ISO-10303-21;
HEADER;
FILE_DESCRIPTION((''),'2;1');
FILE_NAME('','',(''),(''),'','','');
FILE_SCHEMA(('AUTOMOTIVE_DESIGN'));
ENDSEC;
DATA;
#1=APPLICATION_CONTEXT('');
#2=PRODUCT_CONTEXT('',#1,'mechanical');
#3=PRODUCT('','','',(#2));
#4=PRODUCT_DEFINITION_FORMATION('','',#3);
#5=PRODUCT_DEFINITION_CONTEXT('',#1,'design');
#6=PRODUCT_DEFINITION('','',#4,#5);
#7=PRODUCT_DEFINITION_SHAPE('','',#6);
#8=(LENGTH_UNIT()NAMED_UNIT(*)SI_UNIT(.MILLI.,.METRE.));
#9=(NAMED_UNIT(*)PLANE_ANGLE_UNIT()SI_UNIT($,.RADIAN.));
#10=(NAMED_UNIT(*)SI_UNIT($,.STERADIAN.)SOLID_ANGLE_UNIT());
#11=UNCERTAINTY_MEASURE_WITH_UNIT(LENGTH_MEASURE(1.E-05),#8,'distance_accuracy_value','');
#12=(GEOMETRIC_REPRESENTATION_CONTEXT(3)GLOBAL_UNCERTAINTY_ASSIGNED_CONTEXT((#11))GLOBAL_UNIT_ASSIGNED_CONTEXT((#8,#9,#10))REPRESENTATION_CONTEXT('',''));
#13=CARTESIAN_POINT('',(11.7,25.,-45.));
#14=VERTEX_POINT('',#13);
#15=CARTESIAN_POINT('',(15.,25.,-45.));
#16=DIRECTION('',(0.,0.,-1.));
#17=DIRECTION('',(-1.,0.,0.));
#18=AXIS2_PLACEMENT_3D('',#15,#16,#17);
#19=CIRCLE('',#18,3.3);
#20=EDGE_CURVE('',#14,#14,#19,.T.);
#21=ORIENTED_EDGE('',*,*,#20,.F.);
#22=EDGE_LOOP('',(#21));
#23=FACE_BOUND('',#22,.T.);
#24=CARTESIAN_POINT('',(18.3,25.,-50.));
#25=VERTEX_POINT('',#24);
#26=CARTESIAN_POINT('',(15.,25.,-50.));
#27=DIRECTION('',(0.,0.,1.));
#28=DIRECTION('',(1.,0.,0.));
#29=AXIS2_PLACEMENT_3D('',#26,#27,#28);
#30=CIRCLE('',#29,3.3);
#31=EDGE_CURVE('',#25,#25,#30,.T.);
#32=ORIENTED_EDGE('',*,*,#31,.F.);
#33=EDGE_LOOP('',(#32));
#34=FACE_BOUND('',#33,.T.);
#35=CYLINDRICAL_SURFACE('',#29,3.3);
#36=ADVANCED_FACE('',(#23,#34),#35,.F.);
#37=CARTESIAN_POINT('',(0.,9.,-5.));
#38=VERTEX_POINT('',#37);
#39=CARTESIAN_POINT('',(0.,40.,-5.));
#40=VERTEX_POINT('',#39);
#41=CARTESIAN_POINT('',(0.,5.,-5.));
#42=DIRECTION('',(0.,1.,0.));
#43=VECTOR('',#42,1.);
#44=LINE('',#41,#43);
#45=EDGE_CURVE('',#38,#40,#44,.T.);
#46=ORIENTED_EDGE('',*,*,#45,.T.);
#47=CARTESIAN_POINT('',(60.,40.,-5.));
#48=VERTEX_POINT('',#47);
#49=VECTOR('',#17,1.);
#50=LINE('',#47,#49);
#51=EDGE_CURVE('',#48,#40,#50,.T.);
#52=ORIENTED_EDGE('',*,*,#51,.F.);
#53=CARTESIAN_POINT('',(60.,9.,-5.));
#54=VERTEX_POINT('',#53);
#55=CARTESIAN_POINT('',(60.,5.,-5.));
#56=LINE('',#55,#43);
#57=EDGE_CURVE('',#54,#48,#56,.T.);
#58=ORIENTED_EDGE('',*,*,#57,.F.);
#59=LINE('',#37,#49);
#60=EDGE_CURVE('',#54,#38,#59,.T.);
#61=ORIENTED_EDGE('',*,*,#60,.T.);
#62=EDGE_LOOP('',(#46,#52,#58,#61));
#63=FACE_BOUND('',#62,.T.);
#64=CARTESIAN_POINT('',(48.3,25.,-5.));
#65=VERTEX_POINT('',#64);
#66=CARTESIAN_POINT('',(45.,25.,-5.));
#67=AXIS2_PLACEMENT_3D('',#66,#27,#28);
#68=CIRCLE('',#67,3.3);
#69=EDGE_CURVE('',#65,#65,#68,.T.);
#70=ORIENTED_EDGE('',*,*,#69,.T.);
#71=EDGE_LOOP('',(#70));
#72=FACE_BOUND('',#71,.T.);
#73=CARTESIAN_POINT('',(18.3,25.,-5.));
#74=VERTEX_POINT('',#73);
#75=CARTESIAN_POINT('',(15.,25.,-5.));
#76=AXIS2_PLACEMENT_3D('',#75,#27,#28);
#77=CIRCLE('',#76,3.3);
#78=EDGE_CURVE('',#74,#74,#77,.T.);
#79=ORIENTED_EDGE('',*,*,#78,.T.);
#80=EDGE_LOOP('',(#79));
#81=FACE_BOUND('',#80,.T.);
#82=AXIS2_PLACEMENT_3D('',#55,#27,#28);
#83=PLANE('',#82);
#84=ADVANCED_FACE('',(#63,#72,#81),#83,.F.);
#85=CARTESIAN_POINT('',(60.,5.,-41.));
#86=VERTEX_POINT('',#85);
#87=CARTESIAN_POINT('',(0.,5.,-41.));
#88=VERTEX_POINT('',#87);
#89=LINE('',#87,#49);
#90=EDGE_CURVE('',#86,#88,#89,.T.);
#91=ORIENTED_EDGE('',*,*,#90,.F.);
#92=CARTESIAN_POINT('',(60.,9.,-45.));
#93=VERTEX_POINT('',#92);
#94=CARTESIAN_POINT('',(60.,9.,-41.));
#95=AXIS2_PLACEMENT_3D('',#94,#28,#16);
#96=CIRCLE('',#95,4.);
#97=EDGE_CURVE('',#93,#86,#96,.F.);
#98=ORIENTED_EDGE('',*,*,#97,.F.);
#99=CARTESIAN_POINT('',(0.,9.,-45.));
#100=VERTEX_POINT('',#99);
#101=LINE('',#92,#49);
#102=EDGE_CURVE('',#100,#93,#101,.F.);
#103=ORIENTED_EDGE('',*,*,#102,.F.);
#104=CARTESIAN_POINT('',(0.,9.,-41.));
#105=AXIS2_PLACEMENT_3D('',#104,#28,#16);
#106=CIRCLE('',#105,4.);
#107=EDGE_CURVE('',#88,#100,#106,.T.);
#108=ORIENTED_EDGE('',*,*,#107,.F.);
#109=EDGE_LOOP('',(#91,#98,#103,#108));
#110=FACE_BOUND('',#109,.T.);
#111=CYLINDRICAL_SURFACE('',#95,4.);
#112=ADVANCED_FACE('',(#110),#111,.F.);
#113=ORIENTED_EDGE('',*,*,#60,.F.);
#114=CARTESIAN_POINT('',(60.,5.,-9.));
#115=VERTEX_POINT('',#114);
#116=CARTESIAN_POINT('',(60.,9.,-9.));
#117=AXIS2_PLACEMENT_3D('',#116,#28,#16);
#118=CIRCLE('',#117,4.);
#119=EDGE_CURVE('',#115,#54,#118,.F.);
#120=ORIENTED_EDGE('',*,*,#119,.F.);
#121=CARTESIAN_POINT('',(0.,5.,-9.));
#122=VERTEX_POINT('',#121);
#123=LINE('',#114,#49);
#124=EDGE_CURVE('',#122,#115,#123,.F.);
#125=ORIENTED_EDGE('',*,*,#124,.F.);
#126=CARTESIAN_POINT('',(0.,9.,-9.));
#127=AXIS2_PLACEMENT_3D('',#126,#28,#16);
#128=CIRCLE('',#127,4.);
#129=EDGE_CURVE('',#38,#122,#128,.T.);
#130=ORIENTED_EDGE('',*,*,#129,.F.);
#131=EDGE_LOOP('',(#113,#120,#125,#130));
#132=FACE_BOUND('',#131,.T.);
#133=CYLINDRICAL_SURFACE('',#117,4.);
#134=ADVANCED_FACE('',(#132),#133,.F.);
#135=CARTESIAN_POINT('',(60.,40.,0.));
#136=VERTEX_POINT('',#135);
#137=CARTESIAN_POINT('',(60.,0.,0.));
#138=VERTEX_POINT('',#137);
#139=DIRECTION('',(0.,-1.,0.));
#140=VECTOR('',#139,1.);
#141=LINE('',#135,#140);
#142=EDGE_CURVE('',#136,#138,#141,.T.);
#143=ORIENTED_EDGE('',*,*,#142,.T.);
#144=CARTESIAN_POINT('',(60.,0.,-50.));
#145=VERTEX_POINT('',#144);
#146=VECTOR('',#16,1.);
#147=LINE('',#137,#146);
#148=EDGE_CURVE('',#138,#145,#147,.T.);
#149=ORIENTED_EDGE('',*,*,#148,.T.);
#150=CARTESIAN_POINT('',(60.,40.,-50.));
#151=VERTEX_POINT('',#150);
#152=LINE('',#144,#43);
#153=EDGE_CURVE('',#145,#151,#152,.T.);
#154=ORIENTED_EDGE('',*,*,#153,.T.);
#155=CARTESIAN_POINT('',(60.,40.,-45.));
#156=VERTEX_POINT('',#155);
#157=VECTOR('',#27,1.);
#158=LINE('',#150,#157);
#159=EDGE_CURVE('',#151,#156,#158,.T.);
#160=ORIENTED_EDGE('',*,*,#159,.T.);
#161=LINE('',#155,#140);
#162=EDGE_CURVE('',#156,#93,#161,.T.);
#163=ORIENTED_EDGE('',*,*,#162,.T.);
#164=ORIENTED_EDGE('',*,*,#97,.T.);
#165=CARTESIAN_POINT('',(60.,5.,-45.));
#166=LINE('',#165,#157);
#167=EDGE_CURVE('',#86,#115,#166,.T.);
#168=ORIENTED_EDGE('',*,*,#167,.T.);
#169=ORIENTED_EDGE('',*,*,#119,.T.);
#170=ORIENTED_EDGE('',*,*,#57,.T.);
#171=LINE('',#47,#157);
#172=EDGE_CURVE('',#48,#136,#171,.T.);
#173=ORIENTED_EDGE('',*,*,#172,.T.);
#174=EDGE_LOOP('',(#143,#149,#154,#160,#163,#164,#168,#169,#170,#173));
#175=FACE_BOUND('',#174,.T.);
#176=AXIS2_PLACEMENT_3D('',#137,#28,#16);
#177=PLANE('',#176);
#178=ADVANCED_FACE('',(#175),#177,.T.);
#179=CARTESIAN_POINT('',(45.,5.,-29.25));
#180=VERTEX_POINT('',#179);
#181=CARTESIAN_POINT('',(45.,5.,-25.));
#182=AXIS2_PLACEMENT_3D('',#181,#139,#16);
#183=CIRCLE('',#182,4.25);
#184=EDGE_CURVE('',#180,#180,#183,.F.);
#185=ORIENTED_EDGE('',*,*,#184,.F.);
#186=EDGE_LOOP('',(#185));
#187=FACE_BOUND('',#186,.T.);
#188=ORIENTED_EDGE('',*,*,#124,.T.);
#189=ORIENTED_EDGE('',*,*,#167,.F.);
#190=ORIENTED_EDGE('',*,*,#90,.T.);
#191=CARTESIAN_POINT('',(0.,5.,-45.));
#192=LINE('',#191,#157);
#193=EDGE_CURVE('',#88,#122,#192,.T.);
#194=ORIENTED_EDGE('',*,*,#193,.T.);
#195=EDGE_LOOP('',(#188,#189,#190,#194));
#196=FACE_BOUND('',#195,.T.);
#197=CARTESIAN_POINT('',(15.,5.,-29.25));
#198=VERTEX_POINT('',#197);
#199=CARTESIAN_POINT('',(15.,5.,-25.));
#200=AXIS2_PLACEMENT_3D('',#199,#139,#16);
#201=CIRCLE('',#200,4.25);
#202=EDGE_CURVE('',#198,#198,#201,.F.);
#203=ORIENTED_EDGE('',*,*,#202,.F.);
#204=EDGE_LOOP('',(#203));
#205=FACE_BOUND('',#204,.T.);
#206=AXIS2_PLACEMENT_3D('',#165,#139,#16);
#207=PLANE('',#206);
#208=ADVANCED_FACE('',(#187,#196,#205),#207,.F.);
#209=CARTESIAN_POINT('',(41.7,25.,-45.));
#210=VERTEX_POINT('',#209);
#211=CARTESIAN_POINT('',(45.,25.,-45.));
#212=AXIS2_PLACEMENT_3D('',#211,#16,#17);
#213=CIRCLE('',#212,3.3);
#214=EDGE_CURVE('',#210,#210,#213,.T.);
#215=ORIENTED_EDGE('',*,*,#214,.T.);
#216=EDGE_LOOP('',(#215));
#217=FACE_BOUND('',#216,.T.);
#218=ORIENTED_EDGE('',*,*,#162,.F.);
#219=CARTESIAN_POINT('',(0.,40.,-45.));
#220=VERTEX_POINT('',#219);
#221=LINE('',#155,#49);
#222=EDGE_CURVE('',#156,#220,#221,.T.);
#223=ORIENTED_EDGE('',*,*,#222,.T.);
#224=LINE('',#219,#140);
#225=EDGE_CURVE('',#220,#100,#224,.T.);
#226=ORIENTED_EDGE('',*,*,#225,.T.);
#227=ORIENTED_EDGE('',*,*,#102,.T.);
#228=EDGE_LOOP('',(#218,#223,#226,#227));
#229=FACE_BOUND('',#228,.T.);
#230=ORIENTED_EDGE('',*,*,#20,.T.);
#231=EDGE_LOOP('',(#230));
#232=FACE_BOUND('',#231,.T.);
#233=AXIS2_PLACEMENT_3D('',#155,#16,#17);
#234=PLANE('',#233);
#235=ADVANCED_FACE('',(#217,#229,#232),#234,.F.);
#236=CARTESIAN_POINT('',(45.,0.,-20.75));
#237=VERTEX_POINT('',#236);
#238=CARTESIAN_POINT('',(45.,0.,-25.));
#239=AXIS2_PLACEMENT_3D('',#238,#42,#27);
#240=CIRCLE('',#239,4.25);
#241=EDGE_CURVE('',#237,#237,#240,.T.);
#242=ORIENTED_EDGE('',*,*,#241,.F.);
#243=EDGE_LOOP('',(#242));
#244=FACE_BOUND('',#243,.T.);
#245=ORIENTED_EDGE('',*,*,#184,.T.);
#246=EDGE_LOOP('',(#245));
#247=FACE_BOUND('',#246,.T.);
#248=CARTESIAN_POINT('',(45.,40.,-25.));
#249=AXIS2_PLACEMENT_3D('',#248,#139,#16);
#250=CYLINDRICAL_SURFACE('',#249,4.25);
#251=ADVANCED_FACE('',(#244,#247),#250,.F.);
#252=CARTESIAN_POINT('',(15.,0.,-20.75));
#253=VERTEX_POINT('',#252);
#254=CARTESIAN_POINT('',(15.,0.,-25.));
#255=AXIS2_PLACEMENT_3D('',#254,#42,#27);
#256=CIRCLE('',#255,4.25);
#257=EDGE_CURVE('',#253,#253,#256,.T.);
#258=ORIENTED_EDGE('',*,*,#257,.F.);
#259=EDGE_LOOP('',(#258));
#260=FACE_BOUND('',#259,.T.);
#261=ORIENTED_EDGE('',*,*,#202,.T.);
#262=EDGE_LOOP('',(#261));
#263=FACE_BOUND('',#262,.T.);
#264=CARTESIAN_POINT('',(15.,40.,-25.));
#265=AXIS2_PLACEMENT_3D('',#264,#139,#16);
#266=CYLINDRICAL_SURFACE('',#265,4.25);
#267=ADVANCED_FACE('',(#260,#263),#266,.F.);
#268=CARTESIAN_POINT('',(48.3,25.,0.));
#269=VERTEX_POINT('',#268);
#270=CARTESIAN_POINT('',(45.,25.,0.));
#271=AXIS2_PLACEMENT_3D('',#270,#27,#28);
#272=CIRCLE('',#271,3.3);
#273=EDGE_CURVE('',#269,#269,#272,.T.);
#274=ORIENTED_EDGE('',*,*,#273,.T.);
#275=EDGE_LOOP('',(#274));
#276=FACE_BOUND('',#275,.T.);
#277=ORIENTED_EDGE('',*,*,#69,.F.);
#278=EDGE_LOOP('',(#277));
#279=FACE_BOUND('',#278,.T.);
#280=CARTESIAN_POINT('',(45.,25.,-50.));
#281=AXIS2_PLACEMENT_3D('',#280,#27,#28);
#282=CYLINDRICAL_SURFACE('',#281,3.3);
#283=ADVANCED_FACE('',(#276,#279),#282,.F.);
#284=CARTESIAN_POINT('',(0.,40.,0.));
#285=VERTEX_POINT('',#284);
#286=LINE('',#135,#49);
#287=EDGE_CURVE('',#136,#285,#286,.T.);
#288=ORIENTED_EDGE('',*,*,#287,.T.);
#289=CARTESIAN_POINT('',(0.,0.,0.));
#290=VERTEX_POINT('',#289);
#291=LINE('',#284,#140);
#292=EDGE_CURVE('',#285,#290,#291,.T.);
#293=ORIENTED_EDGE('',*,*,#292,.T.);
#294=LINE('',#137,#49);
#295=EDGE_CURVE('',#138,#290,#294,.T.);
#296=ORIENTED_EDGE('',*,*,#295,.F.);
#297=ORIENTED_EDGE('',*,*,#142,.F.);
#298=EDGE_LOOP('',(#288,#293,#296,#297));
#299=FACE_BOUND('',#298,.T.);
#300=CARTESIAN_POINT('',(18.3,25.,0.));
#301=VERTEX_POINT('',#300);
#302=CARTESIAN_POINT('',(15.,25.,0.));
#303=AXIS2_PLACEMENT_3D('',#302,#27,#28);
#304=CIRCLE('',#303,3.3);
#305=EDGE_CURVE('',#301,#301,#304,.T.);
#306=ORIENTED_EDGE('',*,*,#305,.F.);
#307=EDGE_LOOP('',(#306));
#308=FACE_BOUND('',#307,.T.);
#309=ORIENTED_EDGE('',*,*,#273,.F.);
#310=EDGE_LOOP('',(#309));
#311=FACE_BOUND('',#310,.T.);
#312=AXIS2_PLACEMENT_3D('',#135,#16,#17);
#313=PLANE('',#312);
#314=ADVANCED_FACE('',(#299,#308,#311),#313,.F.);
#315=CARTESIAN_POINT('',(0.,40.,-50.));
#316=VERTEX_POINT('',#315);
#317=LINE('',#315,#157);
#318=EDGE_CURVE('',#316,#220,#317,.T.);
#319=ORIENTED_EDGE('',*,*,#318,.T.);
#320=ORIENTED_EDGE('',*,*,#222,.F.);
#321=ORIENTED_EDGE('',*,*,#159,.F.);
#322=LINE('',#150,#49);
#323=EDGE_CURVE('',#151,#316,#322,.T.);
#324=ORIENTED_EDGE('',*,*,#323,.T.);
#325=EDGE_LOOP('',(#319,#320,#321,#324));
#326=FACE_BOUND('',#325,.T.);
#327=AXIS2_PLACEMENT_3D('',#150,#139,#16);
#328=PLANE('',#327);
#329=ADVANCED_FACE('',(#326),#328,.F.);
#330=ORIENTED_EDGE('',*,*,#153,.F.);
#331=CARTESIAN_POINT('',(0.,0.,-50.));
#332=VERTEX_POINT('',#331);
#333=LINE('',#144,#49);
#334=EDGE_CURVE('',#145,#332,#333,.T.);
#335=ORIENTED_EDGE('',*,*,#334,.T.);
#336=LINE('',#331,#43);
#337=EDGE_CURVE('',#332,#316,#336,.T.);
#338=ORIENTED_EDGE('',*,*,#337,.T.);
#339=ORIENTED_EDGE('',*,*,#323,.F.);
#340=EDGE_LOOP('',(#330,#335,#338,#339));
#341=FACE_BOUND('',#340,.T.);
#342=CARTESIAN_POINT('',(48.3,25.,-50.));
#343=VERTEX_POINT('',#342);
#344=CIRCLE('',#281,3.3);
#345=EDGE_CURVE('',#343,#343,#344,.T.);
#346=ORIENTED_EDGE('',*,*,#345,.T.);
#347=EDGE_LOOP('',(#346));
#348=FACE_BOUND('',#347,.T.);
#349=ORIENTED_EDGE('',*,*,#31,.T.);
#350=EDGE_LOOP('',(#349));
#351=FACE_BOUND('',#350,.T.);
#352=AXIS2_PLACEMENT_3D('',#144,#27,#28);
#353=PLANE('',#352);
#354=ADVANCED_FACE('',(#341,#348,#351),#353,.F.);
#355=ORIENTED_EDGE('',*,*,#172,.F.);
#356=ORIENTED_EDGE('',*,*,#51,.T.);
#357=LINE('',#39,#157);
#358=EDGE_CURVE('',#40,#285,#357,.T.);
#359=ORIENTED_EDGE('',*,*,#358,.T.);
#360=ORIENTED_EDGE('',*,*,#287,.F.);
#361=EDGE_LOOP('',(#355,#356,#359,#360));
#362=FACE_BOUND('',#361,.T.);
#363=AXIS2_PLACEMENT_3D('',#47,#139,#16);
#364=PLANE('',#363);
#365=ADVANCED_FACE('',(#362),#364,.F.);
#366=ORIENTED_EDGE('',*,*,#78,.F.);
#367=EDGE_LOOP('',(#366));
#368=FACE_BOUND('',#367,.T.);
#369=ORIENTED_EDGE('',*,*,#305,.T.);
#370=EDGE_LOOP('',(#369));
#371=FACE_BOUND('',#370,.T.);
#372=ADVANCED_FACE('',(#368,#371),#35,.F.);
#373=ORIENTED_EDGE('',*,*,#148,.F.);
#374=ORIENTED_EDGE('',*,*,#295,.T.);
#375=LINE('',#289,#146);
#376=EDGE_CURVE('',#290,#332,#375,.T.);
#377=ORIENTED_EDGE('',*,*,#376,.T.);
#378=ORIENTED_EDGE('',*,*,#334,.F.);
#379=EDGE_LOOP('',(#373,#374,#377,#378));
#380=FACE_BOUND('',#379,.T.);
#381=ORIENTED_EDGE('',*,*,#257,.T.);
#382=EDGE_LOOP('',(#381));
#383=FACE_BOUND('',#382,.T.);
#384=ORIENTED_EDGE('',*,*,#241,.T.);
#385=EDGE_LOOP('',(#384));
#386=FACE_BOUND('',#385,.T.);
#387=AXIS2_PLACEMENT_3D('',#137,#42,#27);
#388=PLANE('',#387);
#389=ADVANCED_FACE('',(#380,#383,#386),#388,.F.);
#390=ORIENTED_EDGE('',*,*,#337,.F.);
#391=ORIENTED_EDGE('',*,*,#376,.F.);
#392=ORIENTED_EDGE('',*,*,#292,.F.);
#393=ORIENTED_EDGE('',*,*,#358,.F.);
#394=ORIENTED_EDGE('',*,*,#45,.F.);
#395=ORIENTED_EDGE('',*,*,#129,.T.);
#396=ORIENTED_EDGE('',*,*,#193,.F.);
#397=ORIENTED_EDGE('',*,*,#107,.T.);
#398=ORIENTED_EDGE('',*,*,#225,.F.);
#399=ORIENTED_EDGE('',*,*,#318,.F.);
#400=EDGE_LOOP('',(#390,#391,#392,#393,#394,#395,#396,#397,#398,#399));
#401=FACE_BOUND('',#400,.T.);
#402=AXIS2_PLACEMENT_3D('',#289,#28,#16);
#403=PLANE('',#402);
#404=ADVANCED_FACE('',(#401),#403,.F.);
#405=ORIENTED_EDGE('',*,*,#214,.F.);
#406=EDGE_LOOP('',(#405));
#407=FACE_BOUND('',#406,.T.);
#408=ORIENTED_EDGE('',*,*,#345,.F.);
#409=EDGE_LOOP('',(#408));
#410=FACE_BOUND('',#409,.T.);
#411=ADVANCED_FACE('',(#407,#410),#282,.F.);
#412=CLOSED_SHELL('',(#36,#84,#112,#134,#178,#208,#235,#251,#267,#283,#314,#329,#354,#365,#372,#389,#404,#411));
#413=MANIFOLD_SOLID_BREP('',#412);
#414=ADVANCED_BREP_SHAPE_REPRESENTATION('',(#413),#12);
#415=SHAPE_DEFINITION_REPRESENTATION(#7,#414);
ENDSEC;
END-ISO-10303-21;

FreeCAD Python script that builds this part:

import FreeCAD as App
import Part
import Sketcher


def edges_at(feature, points):
    """Names of the edges that pass closest to the given points."""
    edges = feature.Shape.Edges
    near = lambda p: min(range(len(edges)), key=lambda i: edges[i].distToShape(Part.Vertex(*p))[0])
    return sorted({f"Edge{near(p) + 1}" for p in points})

doc = App.newDocument("Part")
params = doc.addObject("Spreadsheet::Sheet", "Params")
for row, (alias, value) in enumerate([
    ("sketch1_width", "40 mm"),
    ("sketch1_width2", "35 mm"),
    ("sketch1_height", "50 mm"),
    ("pad1_length", "60 mm"),
    ("sketch2_diameter", "8.5 mm"),
    ("sketch3_diameter", "6.6 mm"),
    ("fillet_radius", "4 mm"),
], start=1):
    params.set(f"A{row}", alias)
    params.set(f"B{row}", "=" + value)
    params.setAlias(f"B{row}", alias)

body = doc.addObject("PartDesign::Body", "Body")

# Sketch on YZ plane
sketch1 = body.newObject("Sketcher::SketchObject", "Sketch")
sketch1.AttachmentSupport = (doc.getObject("YZ_Plane"), [""])
sketch1.MapMode = "FlatFace"
sketch1.addGeometry(Part.LineSegment(App.Vector(0, 0, 0), App.Vector(0, -50, 0)), False)
sketch1.addGeometry(Part.LineSegment(App.Vector(0, -50, 0), App.Vector(40, -50, 0)), False)
sketch1.addGeometry(Part.LineSegment(App.Vector(40, -50, 0), App.Vector(40, -45, 0)), False)
sketch1.addGeometry(Part.LineSegment(App.Vector(40, -45, 0), App.Vector(5, -45, 0)), False)
sketch1.addGeometry(Part.LineSegment(App.Vector(5, -45, 0), App.Vector(5, -5, 0)), False)
sketch1.addGeometry(Part.LineSegment(App.Vector(5, -5, 0), App.Vector(40, -5, 0)), False)
sketch1.addGeometry(Part.LineSegment(App.Vector(40, -5, 0), App.Vector(40, 0, 0)), False)
sketch1.addGeometry(Part.LineSegment(App.Vector(40, 0, 0), App.Vector(0, 0, 0)), False)
sketch1.addConstraint(Sketcher.Constraint("Coincident", 0, 2, 1, 1))
sketch1.addConstraint(Sketcher.Constraint("Coincident", 1, 2, 2, 1))
sketch1.addConstraint(Sketcher.Constraint("Coincident", 2, 2, 3, 1))
sketch1.addConstraint(Sketcher.Constraint("Coincident", 3, 2, 4, 1))
sketch1.addConstraint(Sketcher.Constraint("Coincident", 4, 2, 5, 1))
sketch1.addConstraint(Sketcher.Constraint("Coincident", 5, 2, 6, 1))
sketch1.addConstraint(Sketcher.Constraint("Coincident", 6, 2, 7, 1))
sketch1.addConstraint(Sketcher.Constraint("Coincident", 7, 2, 0, 1))
sketch1.addConstraint(Sketcher.Constraint("Vertical", 0))
sketch1.addConstraint(Sketcher.Constraint("Horizontal", 1))
sketch1.addConstraint(Sketcher.Constraint("Vertical", 2))
sketch1.addConstraint(Sketcher.Constraint("Horizontal", 3))
sketch1.addConstraint(Sketcher.Constraint("Vertical", 4))
sketch1.addConstraint(Sketcher.Constraint("Horizontal", 5))
sketch1.addConstraint(Sketcher.Constraint("Vertical", 6))
sketch1.addConstraint(Sketcher.Constraint("Horizontal", 7))
sketch1.addConstraint(Sketcher.Constraint("Coincident", 7, 2, -1, 1))
sketch1.addConstraint(Sketcher.Constraint("Vertical", 2, 2, 5, 2))
sketch1.addConstraint(Sketcher.Constraint("Equal", 7, 4))
sketch1.addConstraint(Sketcher.Constraint("Equal", 2, 6))
sketch1.addConstraint(Sketcher.Constraint("DistanceX", 1, 1, 1, 2, 40.0))
sketch1.addConstraint(Sketcher.Constraint("DistanceX", 3, 2, 3, 1, 35.0))
sketch1.addConstraint(Sketcher.Constraint("DistanceY", 0, 2, 0, 1, 50.0))
sketch1.setExpression("Constraints[20]", "Params.sketch1_width")
sketch1.setExpression("Constraints[21]", "Params.sketch1_width2")
sketch1.setExpression("Constraints[22]", "Params.sketch1_height")
pad1 = body.newObject("PartDesign::Pad", "Pad")
pad1.Profile = sketch1
pad1.setExpression("Length", "Params.pad1_length")

# Sketch on XZ plane
sketch2 = body.newObject("Sketcher::SketchObject", "Sketch001")
sketch2.AttachmentSupport = (doc.getObject("XZ_Plane"), [""])
sketch2.MapMode = "FlatFace"
sketch2.addGeometry(Part.Circle(App.Vector(15, -25, 0), App.Vector(0, 0, 1), 4.2), False)
sketch2.addGeometry(Part.Circle(App.Vector(45, -25, 0), App.Vector(0, 0, 1), 4.2), False)
sketch2.addConstraint(Sketcher.Constraint("Equal", 0, 1))
sketch2.addConstraint(Sketcher.Constraint("Horizontal", 0, 3, 1, 3))
sketch2.addConstraint(Sketcher.Constraint("Diameter", 0, 8.5))
sketch2.addConstraint(Sketcher.Constraint("DistanceX", -1, 1, 0, 3, 15.0))
sketch2.addConstraint(Sketcher.Constraint("DistanceY", 0, 3, -1, 1, 25.0))
sketch2.addConstraint(Sketcher.Constraint("DistanceX", -1, 1, 1, 3, 45.0))
sketch2.setExpression("Constraints[2]", "Params.sketch2_diameter")
pocket1 = body.newObject("PartDesign::Pocket", "Pocket")
pocket1.Profile = sketch2
pocket1.Type = "ThroughAll"

# Sketch on XY plane
sketch3 = body.newObject("Sketcher::SketchObject", "Sketch002")
sketch3.AttachmentSupport = (doc.getObject("XY_Plane"), [""])
sketch3.MapMode = "FlatFace"
sketch3.addGeometry(Part.Circle(App.Vector(15, 25, 0), App.Vector(0, 0, 1), 3.3), False)
sketch3.addGeometry(Part.Circle(App.Vector(45, 25, 0), App.Vector(0, 0, 1), 3.3), False)
sketch3.addConstraint(Sketcher.Constraint("Equal", 0, 1))
sketch3.addConstraint(Sketcher.Constraint("Horizontal", 0, 3, 1, 3))
sketch3.addConstraint(Sketcher.Constraint("Diameter", 0, 6.6))
sketch3.addConstraint(Sketcher.Constraint("DistanceX", -1, 1, 0, 3, 15.0))
sketch3.addConstraint(Sketcher.Constraint("DistanceY", -1, 1, 0, 3, 25.0))
sketch3.addConstraint(Sketcher.Constraint("DistanceX", -1, 1, 1, 3, 45.0))
sketch3.setExpression("Constraints[2]", "Params.sketch3_diameter")
pocket2 = body.newObject("PartDesign::Pocket", "Pocket001")
pocket2.Profile = sketch3
pocket2.Type = "ThroughAll"
doc.recompute()

fillet = body.newObject("PartDesign::Fillet", "Fillet")
fillet.Base = (pocket2, edges_at(pocket2, [(30, 5, -5), (30, 5, -45)]))
fillet.setExpression("Radius", "Params.fillet_radius")

doc.recompute()
